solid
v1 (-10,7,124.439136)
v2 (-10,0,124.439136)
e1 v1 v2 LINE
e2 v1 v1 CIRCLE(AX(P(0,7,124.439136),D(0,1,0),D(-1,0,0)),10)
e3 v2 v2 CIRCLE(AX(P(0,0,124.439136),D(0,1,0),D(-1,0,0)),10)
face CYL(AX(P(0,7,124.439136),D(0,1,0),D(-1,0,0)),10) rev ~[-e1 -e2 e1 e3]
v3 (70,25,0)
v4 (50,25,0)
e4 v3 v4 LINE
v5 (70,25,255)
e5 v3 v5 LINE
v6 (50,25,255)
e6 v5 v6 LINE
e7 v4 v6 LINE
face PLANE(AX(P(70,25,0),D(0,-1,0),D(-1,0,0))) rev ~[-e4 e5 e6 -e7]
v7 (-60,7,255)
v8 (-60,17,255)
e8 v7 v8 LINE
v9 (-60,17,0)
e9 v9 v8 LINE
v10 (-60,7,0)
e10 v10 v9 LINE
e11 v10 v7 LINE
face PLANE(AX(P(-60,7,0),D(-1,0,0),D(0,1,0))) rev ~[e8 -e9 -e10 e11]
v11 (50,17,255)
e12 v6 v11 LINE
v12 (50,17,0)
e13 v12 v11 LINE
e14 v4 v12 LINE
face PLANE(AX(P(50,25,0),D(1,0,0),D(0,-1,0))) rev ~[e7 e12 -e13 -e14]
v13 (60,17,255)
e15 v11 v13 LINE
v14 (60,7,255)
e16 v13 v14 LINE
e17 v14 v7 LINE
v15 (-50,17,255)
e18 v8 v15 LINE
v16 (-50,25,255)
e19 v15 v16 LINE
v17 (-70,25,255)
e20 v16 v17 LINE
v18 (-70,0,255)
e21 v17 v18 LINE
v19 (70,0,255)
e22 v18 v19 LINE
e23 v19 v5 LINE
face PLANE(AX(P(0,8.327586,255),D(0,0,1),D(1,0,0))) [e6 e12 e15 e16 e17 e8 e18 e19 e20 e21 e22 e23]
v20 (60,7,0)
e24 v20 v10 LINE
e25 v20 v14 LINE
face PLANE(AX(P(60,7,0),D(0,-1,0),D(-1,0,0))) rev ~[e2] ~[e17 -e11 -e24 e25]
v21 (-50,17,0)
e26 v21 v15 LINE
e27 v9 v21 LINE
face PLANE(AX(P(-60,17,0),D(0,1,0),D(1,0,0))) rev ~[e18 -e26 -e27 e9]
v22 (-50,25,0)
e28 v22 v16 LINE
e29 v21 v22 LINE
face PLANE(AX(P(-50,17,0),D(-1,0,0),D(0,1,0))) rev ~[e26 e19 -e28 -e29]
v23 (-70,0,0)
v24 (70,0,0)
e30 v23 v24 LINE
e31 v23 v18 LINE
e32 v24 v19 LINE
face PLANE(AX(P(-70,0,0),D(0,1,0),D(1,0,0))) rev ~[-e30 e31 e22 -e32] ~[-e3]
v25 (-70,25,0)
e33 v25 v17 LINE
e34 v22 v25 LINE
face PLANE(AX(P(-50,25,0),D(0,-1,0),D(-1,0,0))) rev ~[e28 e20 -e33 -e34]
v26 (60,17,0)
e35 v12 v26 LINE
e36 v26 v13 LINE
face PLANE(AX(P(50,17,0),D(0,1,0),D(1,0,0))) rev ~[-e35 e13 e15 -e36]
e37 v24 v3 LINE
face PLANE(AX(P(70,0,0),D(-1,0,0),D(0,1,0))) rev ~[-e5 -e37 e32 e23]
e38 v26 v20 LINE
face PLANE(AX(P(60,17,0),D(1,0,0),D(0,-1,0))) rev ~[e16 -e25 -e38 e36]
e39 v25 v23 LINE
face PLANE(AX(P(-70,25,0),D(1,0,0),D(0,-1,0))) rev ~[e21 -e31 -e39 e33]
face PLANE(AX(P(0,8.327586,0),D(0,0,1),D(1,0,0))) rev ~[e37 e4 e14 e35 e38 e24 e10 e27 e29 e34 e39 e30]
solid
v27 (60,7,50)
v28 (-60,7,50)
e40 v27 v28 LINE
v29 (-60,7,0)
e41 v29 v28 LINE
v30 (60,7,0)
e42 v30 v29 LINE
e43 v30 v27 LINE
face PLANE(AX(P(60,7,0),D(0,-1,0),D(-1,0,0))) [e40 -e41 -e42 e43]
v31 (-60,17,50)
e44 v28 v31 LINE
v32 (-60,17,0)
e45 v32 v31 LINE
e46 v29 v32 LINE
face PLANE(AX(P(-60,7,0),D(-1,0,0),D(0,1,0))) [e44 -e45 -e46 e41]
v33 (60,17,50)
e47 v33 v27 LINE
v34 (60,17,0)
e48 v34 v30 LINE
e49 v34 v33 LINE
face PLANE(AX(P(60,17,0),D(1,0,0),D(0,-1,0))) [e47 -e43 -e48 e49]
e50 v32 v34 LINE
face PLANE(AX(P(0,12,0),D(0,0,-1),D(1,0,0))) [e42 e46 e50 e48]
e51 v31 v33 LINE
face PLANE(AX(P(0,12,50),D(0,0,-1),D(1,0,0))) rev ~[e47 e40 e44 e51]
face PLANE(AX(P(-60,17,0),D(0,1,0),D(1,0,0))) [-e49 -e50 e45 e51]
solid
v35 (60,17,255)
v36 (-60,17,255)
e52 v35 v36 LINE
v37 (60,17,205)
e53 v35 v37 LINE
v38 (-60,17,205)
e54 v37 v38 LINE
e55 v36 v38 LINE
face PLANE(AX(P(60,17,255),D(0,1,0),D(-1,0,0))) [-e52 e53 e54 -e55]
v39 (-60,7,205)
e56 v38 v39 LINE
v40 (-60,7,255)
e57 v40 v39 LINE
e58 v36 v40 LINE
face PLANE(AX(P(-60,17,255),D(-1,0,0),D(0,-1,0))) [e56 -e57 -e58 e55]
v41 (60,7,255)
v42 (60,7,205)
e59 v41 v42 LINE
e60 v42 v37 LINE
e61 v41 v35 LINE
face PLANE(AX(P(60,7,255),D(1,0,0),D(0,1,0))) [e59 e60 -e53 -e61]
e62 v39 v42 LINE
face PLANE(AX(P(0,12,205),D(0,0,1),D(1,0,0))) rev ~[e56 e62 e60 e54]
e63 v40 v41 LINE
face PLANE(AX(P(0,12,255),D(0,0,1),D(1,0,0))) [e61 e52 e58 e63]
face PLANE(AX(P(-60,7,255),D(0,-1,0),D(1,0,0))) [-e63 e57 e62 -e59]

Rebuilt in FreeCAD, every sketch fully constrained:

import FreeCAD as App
import Part
import Sketcher

V = App.Vector


def add_polygon(sketch, points):
    """Adds a closed chain of lines whose ends are joined by coincident constraints."""
    first, n = sketch.GeometryCount, len(points)
    for a, b in zip(points, points[1:] + points[:1]):
        sketch.addGeometry(Part.LineSegment(App.Vector(*a, 0), App.Vector(*b, 0)), False)
    for i in range(n):
        sketch.addConstraint(Sketcher.Constraint("Coincident", first + i, 2, first + (i + 1) % n, 1))

doc = App.newDocument("Part")
params = doc.addObject("Spreadsheet::Sheet", "Params")
for row, (alias, value) in enumerate([
    ("sketch1_width", "140 mm"),
    ("sketch1_width2", "20 mm"),
    ("sketch1_width3", "10 mm"),
    ("sketch1_height", "25 mm"),
    ("sketch1_height2", "8 mm"),
    ("pad1_length", "255 mm"),
    ("sketch2_diameter", "20 mm"),
    ("pocket1_length", "12 mm"),
    ("sketch3_width", "120 mm"),
    ("sketch3_height", "10 mm"),
    ("pad2_length", "50 mm"),
    ("sketch4_width", "120 mm"),
    ("sketch4_height", "10 mm"),
    ("pad3_length", "50 mm"),
], start=1):
    params.set(f"A{row}", alias)
    params.set(f"B{row}", "=" + value)
    params.setAlias(f"B{row}", alias)

body = doc.addObject("PartDesign::Body", "Body")

sketch1 = body.newObject("Sketcher::SketchObject", "Sketch")
sketch1.AttachmentSupport = (doc.getObject("XY_Plane"), [""])
sketch1.MapMode = "FlatFace"
add_polygon(sketch1, [(-70, 0), (70, 0), (70, 25), (50, 25), (50, 17), (60, 17), (60, 7), (-60, 7), (-60, 17), (-50, 17), (-50, 25), (-70, 25)])
sketch1.addConstraint(Sketcher.Constraint("Horizontal", 0))
sketch1.addConstraint(Sketcher.Constraint("Vertical", 1))
sketch1.addConstraint(Sketcher.Constraint("Horizontal", 2))
sketch1.addConstraint(Sketcher.Constraint("Vertical", 3))
sketch1.addConstraint(Sketcher.Constraint("Horizontal", 4))
sketch1.addConstraint(Sketcher.Constraint("Vertical", 5))
sketch1.addConstraint(Sketcher.Constraint("Horizontal", 6))
sketch1.addConstraint(Sketcher.Constraint("Vertical", 7))
sketch1.addConstraint(Sketcher.Constraint("Horizontal", 8))
sketch1.addConstraint(Sketcher.Constraint("Vertical", 9))
sketch1.addConstraint(Sketcher.Constraint("Horizontal", 10))
sketch1.addConstraint(Sketcher.Constraint("Vertical", 11))
sketch1.addConstraint(Sketcher.Constraint("Symmetric", 0, 2, 11, 2, -1, 1))
sketch1.addConstraint(Sketcher.Constraint("Symmetric", 4, 2, 7, 2, -2))
sketch1.addConstraint(Sketcher.Constraint("Symmetric", 2, 2, 9, 2, -2))
sketch1.addConstraint(Sketcher.Constraint("Equal", 8, 5))
sketch1.addConstraint(Sketcher.Constraint("DistanceX", 0, 1, 0, 2, 140.0))
sketch1.addConstraint(Sketcher.Constraint("DistanceX", 2, 2, 2, 1, 20.0))
sketch1.addConstraint(Sketcher.Constraint("DistanceX", 4, 1, 4, 2, 10.0))
sketch1.addConstraint(Sketcher.Constraint("DistanceY", 1, 1, 1, 2, 25.0))
sketch1.addConstraint(Sketcher.Constraint("DistanceY", 3, 2, 3, 1, 8.0))
sketch1.setExpression("Constraints[28]", "Params.sketch1_width")
sketch1.setExpression("Constraints[29]", "Params.sketch1_width2")
sketch1.setExpression("Constraints[30]", "Params.sketch1_width3")
sketch1.setExpression("Constraints[31]", "Params.sketch1_height")
sketch1.setExpression("Constraints[32]", "Params.sketch1_height2")
pad1 = body.newObject("PartDesign::Pad", "Pad")
pad1.Profile = sketch1
pad1.setExpression("Length", "Params.pad1_length")

sketch2 = body.newObject("Sketcher::SketchObject", "Sketch001")
sketch2.AttachmentSupport = (doc.getObject("XZ_Plane"), [""])
sketch2.MapMode = "FlatFace"
sketch2.AttachmentOffset = App.Placement(V(0, 0, -7), App.Rotation())
sketch2.addGeometry(Part.Circle(V(0, 124, 0), V(0, 0, 1), 10), False)
sketch2.addConstraint(Sketcher.Constraint("PointOnObject", 0, 3, -2))
sketch2.addConstraint(Sketcher.Constraint("Diameter", 0, 20.0))
sketch2.addConstraint(Sketcher.Constraint("DistanceY", -1, 1, 0, 3, 124.439136))
sketch2.setExpression("Constraints[1]", "Params.sketch2_diameter")
pocket1 = body.newObject("PartDesign::Pocket", "Pocket")
pocket1.Profile = sketch2
pocket1.setExpression("Length", "Params.pocket1_length")
pocket1.Reversed = True
body2 = doc.addObject("PartDesign::Body", "Body001")

sketch3 = body2.newObject("Sketcher::SketchObject", "Sketch002")
sketch3.AttachmentSupport = (doc.getObject("XY_Plane001"), [""])
sketch3.MapMode = "FlatFace"
sketch3.AttachmentOffset = App.Placement(V(0, 0, 255), App.Rotation())
add_polygon(sketch3, [(-60, 17), (-60, 7), (60, 7), (60, 17)])
sketch3.addConstraint(Sketcher.Constraint("Vertical", 0))
sketch3.addConstraint(Sketcher.Constraint("Horizontal", 1))
sketch3.addConstraint(Sketcher.Constraint("Vertical", 2))
sketch3.addConstraint(Sketcher.Constraint("Horizontal", 3))
sketch3.addConstraint(Sketcher.Constraint("DistanceX", 1, 1, 1, 2, 120.0))
sketch3.addConstraint(Sketcher.Constraint("DistanceY", 0, 2, 0, 1, 10.0))
sketch3.addConstraint(Sketcher.Constraint("DistanceX", 0, 2, -1, 1, 60.0))
sketch3.addConstraint(Sketcher.Constraint("DistanceY", -1, 1, 0, 2, 7.0))
sketch3.setExpression("Constraints[8]", "Params.sketch3_width")
sketch3.setExpression("Constraints[9]", "Params.sketch3_height")
pad2 = body2.newObject("PartDesign::Pad", "Pad001")
pad2.Profile = sketch3
pad2.setExpression("Length", "Params.pad2_length")
pad2.Reversed = True
body3 = doc.addObject("PartDesign::Body", "Body002")

sketch4 = body3.newObject("Sketcher::SketchObject", "Sketch003")
sketch4.AttachmentSupport = (doc.getObject("XY_Plane002"), [""])
sketch4.MapMode = "FlatFace"
add_polygon(sketch4, [(60, 7), (-60, 7), (-60, 17), (60, 17)])
sketch4.addConstraint(Sketcher.Constraint("Horizontal", 0))
sketch4.addConstraint(Sketcher.Constraint("Vertical", 1))
sketch4.addConstraint(Sketcher.Constraint("Horizontal", 2))
sketch4.addConstraint(Sketcher.Constraint("Vertical", 3))
sketch4.addConstraint(Sketcher.Constraint("DistanceX", 0, 2, 0, 1, 120.0))
sketch4.addConstraint(Sketcher.Constraint("DistanceY", 1, 1, 1, 2, 10.0))
sketch4.addConstraint(Sketcher.Constraint("DistanceX", 0, 2, -1, 1, 60.0))
sketch4.addConstraint(Sketcher.Constraint("DistanceY", -1, 1, 0, 2, 7.0))
sketch4.setExpression("Constraints[8]", "Params.sketch4_width")
sketch4.setExpression("Constraints[9]", "Params.sketch4_height")
pad3 = body3.newObject("PartDesign::Pad", "Pad002")
pad3.Profile = sketch4
pad3.setExpression("Length", "Params.pad3_length")

doc.recompute()
